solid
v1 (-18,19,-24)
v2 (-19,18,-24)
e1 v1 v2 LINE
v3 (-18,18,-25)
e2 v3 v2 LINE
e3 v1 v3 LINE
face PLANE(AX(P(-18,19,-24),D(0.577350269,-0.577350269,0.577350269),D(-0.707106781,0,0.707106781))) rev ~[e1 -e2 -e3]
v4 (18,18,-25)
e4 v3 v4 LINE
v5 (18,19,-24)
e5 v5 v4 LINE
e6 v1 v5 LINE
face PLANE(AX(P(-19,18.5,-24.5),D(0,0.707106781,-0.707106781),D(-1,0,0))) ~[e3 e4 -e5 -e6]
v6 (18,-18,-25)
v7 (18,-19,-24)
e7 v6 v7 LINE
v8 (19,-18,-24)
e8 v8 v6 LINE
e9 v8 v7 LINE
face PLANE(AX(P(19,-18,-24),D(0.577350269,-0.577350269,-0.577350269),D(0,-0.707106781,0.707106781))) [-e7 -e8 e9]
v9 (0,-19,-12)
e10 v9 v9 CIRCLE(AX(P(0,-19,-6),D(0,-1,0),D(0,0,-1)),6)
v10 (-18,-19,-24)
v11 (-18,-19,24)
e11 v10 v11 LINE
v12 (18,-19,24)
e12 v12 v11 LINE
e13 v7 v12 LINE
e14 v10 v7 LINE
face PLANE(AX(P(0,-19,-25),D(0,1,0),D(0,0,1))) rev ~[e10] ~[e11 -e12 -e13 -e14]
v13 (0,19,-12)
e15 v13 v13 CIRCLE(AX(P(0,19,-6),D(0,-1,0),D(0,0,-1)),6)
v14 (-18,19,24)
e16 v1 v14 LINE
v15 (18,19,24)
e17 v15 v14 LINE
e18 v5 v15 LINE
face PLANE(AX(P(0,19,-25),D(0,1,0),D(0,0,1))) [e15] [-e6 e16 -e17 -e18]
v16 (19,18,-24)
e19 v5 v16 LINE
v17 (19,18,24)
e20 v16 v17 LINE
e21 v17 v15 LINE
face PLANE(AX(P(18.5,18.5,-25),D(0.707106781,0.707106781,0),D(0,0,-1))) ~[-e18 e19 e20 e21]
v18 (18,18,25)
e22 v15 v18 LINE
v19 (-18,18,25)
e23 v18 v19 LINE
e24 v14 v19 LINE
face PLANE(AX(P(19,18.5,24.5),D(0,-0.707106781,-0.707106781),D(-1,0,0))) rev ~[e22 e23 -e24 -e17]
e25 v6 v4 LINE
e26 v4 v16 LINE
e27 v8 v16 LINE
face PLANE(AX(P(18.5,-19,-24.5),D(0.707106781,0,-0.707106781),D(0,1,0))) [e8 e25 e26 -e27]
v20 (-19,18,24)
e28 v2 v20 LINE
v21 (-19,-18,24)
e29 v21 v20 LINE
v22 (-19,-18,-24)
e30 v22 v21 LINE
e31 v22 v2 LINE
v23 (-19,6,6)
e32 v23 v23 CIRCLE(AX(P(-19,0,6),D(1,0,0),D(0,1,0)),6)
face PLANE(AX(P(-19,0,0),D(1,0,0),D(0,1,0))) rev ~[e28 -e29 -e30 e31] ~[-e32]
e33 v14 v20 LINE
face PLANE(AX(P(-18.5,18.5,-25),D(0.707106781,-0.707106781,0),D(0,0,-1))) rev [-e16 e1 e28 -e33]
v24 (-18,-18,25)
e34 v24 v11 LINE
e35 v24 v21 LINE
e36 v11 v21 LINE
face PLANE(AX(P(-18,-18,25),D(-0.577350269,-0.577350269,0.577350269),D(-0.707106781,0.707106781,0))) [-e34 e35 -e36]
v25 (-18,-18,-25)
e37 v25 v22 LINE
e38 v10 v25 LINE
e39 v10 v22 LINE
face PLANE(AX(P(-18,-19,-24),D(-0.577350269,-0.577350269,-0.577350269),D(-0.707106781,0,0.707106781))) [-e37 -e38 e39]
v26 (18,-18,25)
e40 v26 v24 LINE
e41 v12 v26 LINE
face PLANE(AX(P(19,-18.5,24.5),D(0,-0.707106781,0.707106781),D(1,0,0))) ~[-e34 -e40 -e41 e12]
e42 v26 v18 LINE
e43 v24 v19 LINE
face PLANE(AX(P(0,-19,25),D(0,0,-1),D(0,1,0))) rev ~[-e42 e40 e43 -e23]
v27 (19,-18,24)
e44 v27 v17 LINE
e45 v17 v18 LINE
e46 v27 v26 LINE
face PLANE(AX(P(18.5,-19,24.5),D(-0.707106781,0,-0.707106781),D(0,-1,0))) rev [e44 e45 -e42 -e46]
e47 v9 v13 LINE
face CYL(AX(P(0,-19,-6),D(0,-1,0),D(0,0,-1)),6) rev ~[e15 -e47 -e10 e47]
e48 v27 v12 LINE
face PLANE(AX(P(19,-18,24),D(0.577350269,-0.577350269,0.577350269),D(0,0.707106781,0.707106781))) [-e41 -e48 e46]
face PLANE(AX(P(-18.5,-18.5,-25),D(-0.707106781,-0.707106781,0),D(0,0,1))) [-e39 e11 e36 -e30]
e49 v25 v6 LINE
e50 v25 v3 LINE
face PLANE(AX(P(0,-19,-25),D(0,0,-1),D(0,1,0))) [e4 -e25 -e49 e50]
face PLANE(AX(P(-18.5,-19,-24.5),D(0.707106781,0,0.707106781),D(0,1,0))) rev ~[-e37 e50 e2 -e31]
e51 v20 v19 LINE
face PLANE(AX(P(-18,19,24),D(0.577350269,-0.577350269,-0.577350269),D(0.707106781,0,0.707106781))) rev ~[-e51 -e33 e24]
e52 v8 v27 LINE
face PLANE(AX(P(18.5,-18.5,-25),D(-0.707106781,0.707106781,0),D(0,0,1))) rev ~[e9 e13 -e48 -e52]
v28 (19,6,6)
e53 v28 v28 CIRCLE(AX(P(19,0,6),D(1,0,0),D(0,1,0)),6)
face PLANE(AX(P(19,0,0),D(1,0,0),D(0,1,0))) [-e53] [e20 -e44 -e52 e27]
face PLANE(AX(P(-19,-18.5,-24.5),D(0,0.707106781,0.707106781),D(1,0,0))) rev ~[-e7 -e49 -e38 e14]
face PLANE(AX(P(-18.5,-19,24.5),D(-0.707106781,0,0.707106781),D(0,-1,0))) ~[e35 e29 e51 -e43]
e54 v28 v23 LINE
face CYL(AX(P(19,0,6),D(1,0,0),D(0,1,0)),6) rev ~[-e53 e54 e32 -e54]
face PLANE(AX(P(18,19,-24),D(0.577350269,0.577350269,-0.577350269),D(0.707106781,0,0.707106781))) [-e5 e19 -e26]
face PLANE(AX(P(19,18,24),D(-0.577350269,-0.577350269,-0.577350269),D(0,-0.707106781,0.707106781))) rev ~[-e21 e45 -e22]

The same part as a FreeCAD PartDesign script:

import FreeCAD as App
import Part
import Sketcher

V = App.Vector


def edges_at(feature, points):
    """Names of the edges that pass closest to the given points."""
    edges = feature.Shape.Edges
    near = lambda p: min(range(len(edges)), key=lambda i: edges[i].distToShape(Part.Vertex(*p))[0])
    return sorted({f"Edge{near(p) + 1}" for p in points})

doc = App.newDocument("Part")
params = doc.addObject("Spreadsheet::Sheet", "Params")
for row, (alias, value) in enumerate([
    ("sketch1_width", "38 mm"),
    ("sketch1_height", "50 mm"),
    ("pad1_length", "38 mm"),
    ("sketch2_diameter", "12 mm"),
    ("sketch3_diameter", "12 mm"),
    ("chamfer_size", "1 mm"),
], start=1):
    params.set(f"A{row}", alias)
    params.set(f"B{row}", "=" + value)
    params.setAlias(f"B{row}", alias)

body = doc.addObject("PartDesign::Body", "Body")

# Sketch on YZ plane
sketch1 = body.newObject("Sketcher::SketchObject", "Sketch")
sketch1.AttachmentSupport = (doc.getObject("YZ_Plane"), [""])
sketch1.MapMode = "FlatFace"
sketch1.addGeometry(Part.LineSegment(V(-19, 25, 0), V(-19, -25, 0)), False)
sketch1.addGeometry(Part.LineSegment(V(-19, -25, 0), V(19, -25, 0)), False)
sketch1.addGeometry(Part.LineSegment(V(19, -25, 0), V(19, 25, 0)), False)
sketch1.addGeometry(Part.LineSegment(V(19, 25, 0), V(-19, 25, 0)), False)
sketch1.addConstraint(Sketcher.Constraint("Coincident", 0, 2, 1, 1))
sketch1.addConstraint(Sketcher.Constraint("Coincident", 1, 2, 2, 1))
sketch1.addConstraint(Sketcher.Constraint("Coincident", 2, 2, 3, 1))
sketch1.addConstraint(Sketcher.Constraint("Coincident", 3, 2, 0, 1))
sketch1.addConstraint(Sketcher.Constraint("Vertical", 0))
sketch1.addConstraint(Sketcher.Constraint("Horizontal", 1))
sketch1.addConstraint(Sketcher.Constraint("Vertical", 2))
sketch1.addConstraint(Sketcher.Constraint("Horizontal", 3))
sketch1.addConstraint(Sketcher.Constraint("Symmetric", 0, 2, 2, 2, -1, 1))
sketch1.addConstraint(Sketcher.Constraint("DistanceX", 1, 1, 1, 2, 38.0))
sketch1.addConstraint(Sketcher.Constraint("DistanceY", 0, 2, 0, 1, 50.0))
sketch1.setExpression("Constraints[9]", "Params.sketch1_width")
sketch1.setExpression("Constraints[10]", "Params.sketch1_height")
pad1 = body.newObject("PartDesign::Pad", "Pad")
pad1.Profile = sketch1
pad1.setExpression("Length", "Params.pad1_length")
pad1.Midplane = True

# Sketch on YZ plane
sketch2 = body.newObject("Sketcher::SketchObject", "Sketch001")
sketch2.AttachmentSupport = (doc.getObject("YZ_Plane"), [""])
sketch2.MapMode = "FlatFace"
sketch2.AttachmentOffset = App.Placement(V(0, 0, 19), App.Rotation())
sketch2.addGeometry(Part.Circle(V(0, 6, 0), V(0, 0, 1), 6), False)
sketch2.addConstraint(Sketcher.Constraint("PointOnObject", 0, 3, -2))
sketch2.addConstraint(Sketcher.Constraint("Diameter", 0, 12.0))
sketch2.addConstraint(Sketcher.Constraint("DistanceY", -1, 1, 0, 3, 6.0))
sketch2.setExpression("Constraints[1]", "Params.sketch2_diameter")
pocket1 = body.newObject("PartDesign::Pocket", "Pocket")
pocket1.Profile = sketch2
pocket1.Type = "ThroughAll"

# Sketch on XZ plane
sketch3 = body.newObject("Sketcher::SketchObject", "Sketch002")
sketch3.AttachmentSupport = (doc.getObject("XZ_Plane"), [""])
sketch3.MapMode = "FlatFace"
sketch3.AttachmentOffset = App.Placement(V(0, 0, 19), App.Rotation())
sketch3.addGeometry(Part.Circle(V(0, -6, 0), V(0, 0, 1), 6), False)
sketch3.addConstraint(Sketcher.Constraint("PointOnObject", 0, 3, -2))
sketch3.addConstraint(Sketcher.Constraint("Diameter", 0, 12.0))
sketch3.addConstraint(Sketcher.Constraint("DistanceY", 0, 3, -1, 1, 6.0))
sketch3.setExpression("Constraints[1]", "Params.sketch3_diameter")
pocket2 = body.newObject("PartDesign::Pocket", "Pocket001")
pocket2.Profile = sketch3
pocket2.Type = "ThroughAll"
doc.recompute()

chamfer = body.newObject("PartDesign::Chamfer", "Chamfer")
chamfer.Base = (pocket2, edges_at(pocket2, [
    (-19, 0, -25),
    (0, -19, -25),
    (19, 0, -25),
    (0, 19, -25),
    (-19, -19, 0),
    (0, -19, 25),
    (-19, 0, 25),
    (-19, 19, 0),
    (0, 19, 25),
    (19, 19, 0),
    (19, -19, 0),
    (19, 0, 25),
]))
chamfer.setExpression("Size", "Params.chamfer_size")

doc.recompute()
